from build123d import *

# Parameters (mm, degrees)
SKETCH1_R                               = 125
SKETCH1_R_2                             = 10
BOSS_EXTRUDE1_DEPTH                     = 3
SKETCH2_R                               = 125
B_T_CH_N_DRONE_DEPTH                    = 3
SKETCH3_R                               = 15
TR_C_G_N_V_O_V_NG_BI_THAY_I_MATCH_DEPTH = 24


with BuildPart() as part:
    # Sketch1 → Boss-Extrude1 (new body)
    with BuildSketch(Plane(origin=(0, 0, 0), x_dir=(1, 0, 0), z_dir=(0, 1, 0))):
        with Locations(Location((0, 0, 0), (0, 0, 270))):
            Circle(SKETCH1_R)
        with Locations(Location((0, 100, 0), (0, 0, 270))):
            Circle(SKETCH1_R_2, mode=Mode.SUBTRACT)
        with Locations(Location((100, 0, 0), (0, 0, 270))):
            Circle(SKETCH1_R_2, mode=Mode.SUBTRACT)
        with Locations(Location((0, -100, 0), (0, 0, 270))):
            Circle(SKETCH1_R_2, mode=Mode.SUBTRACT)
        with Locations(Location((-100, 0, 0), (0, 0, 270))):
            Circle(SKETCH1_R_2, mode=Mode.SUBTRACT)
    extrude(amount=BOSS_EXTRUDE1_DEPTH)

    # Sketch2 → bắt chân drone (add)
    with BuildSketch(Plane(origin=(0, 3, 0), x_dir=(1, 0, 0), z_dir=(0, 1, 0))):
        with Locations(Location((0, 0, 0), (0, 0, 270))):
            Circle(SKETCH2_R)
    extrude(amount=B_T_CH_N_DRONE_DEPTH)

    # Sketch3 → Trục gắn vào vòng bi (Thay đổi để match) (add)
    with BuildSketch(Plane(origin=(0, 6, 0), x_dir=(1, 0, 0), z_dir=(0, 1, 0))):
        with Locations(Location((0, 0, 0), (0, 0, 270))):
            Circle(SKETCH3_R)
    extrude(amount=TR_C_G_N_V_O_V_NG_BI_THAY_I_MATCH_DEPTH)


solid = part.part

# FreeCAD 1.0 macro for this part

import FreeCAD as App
import Part
import Sketcher

V = App.Vector

doc = App.newDocument("Part")
body = doc.addObject("PartDesign::Body", "Body")

# Sketch on XZ plane
sketch1 = doc.addObject("Sketcher::SketchObject", "Sketch")
body.addObject(sketch1)
sketch1.AttachmentSupport = (doc.XZ_Plane, [""])
sketch1.MapMode = "FlatFace"
sketch1.addGeometry(Part.Circle(V(0, 0, 0), V(0, 0, 1), 125), False)
sketch1.addGeometry(Part.Circle(V(0, -100, 0), V(0, 0, 1), 10), False)
sketch1.addGeometry(Part.Circle(V(-100, 0, 0), V(0, 0, 1), 10), False)
sketch1.addGeometry(Part.Circle(V(100, 0, 0), V(0, 0, 1), 10), False)
sketch1.addGeometry(Part.Circle(V(0, 100, 0), V(0, 0, 1), 10), False)
sketch1.addConstraint(Sketcher.Constraint("Coincident", 0, 3, -1, 1))
sketch1.addConstraint(Sketcher.Constraint("Equal", 1, 2))
sketch1.addConstraint(Sketcher.Constraint("Equal", 2, 3))
sketch1.addConstraint(Sketcher.Constraint("Equal", 3, 4))
sketch1.addConstraint(Sketcher.Constraint("Symmetric", 2, 3, 3, 3, -1, 1))
sketch1.addConstraint(Sketcher.Constraint("Symmetric", 1, 3, 4, 3, -1, 1))
sketch1.addConstraint(Sketcher.Constraint("PointOnObject", 1, 3, -2))
sketch1.addConstraint(Sketcher.Constraint("PointOnObject", 2, 3, -1))
sketch1.addConstraint(Sketcher.Constraint("Diameter", 0, 250.0))
sketch1.addConstraint(Sketcher.Constraint("Diameter", 1, 20.0))
sketch1.addConstraint(Sketcher.Constraint("DistanceY", 1, 3, -1, 1, 100.0))
sketch1.addConstraint(Sketcher.Constraint("DistanceX", 2, 3, -1, 1, 100.0))
pad1 = doc.addObject("PartDesign::Pad", "Pad")
body.addObject(pad1)
pad1.Profile = sketch1
pad1.Length = 3
pad1.Reversed = True

# Sketch on XZ plane
sketch2 = doc.addObject("Sketcher::SketchObject", "Sketch001")
body.addObject(sketch2)
sketch2.AttachmentSupport = (doc.XZ_Plane, [""])
sketch2.MapMode = "FlatFace"
sketch2.AttachmentOffset = App.Placement(V(0, 0, -3), App.Rotation())
sketch2.addGeometry(Part.Circle(V(0, 0, 0), V(0, 0, 1), 125), False)
sketch2.addConstraint(Sketcher.Constraint("Coincident", 0, 3, -1, 1))
sketch2.addConstraint(Sketcher.Constraint("Diameter", 0, 250.0))
pad2 = doc.addObject("PartDesign::Pad", "Pad001")
body.addObject(pad2)
pad2.Profile = sketch2
pad2.Length = 3
pad2.Reversed = True

# Sketch on XZ plane
sketch3 = doc.addObject("Sketcher::SketchObject", "Sketch002")
body.addObject(sketch3)
sketch3.AttachmentSupport = (doc.XZ_Plane, [""])
sketch3.MapMode = "FlatFace"
sketch3.AttachmentOffset = App.Placement(V(0, 0, -6), App.Rotation())
sketch3.addGeometry(Part.Circle(V(0, 0, 0), V(0, 0, 1), 15), False)
sketch3.addConstraint(Sketcher.Constraint("Coincident", 0, 3, -1, 1))
sketch3.addConstraint(Sketcher.Constraint("Diameter", 0, 30.0))
pad3 = doc.addObject("PartDesign::Pad", "Pad002")
body.addObject(pad3)
pad3.Profile = sketch3
pad3.Length = 24
pad3.Reversed = True

doc.recompute()
